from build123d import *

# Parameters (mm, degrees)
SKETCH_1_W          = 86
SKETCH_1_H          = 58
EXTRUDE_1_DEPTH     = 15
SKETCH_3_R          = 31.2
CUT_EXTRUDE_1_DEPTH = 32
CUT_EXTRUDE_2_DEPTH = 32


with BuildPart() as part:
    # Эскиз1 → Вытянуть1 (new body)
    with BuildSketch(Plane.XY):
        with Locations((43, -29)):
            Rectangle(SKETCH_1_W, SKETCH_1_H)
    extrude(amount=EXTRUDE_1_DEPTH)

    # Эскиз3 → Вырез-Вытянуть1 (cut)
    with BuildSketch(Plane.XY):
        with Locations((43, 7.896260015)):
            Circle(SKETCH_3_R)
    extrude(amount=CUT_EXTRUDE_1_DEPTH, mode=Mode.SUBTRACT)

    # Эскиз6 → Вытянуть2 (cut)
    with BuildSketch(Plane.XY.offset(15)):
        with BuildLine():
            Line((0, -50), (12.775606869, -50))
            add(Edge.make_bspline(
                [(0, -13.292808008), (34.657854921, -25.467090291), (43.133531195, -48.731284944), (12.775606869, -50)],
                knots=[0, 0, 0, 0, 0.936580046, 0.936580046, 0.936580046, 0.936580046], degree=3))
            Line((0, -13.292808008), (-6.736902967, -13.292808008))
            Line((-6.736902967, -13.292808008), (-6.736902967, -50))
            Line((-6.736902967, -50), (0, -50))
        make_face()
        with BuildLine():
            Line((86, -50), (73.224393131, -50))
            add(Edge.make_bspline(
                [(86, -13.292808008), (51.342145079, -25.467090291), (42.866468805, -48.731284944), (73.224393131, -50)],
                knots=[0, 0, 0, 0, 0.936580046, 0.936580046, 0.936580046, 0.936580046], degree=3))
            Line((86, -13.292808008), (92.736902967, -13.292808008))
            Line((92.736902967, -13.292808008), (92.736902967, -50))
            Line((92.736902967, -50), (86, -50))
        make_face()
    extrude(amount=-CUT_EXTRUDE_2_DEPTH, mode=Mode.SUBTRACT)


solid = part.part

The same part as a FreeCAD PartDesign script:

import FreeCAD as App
import Part
import Sketcher


def add_polygon(sketch, points):
    """Adds a closed chain of lines whose ends are joined by coincident constraints."""
    first, n = sketch.GeometryCount, len(points)
    for a, b in zip(points, points[1:] + points[:1]):
        sketch.addGeometry(Part.LineSegment(App.Vector(*a, 0), App.Vector(*b, 0)), False)
    for i in range(n):
        sketch.addConstraint(Sketcher.Constraint("Coincident", first + i, 2, first + (i + 1) % n, 1))

doc = App.newDocument("Part")
params = doc.addObject("Spreadsheet::Sheet", "Params")
for row, (alias, value) in enumerate([
    ("sketch1_width", "86 mm"),
    ("sketch1_height", "58 mm"),
    ("pad1_length", "15 mm"),
    ("sketch2_diameter", "62.4 mm"),
    ("pocket1_length", "32 mm"),
    ("pocket2_length", "32 mm"),
], start=1):
    params.set(f"A{row}", alias)
    params.set(f"B{row}", "=" + value)
    params.setAlias(f"B{row}", alias)

body = doc.addObject("PartDesign::Body", "Body")

# Sketch on XY plane
sketch1 = body.newObject("Sketcher::SketchObject", "Sketch")
sketch1.AttachmentSupport = (doc.getObject("XY_Plane"), [""])
sketch1.MapMode = "FlatFace"
add_polygon(sketch1, [(0, 0), (0, -58), (86, -58), (86, 0)])  # lines 0-3
sketch1.addConstraint(Sketcher.Constraint("Vertical", 0))
sketch1.addConstraint(Sketcher.Constraint("Horizontal", 1))
sketch1.addConstraint(Sketcher.Constraint("Vertical", 2))
sketch1.addConstraint(Sketcher.Constraint("Horizontal", 3))
sketch1.addConstraint(Sketcher.Constraint("Coincident", 3, 2, -1, 1))
sketch1.addConstraint(Sketcher.Constraint("DistanceX", 1, 1, 1, 2, 86.0))
sketch1.addConstraint(Sketcher.Constraint("DistanceY", 0, 2, 0, 1, 58.0))
sketch1.setExpression("Constraints[9]", "Params.sketch1_width")
sketch1.setExpression("Constraints[10]", "Params.sketch1_height")
pad1 = body.newObject("PartDesign::Pad", "Pad")
pad1.Profile = sketch1
pad1.setExpression("Length", "Params.pad1_length")

# Sketch on XY plane
sketch2 = body.newObject("Sketcher::SketchObject", "Sketch001")
sketch2.AttachmentSupport = (doc.getObject("XY_Plane"), [""])
sketch2.MapMode = "FlatFace"
sketch2.addGeometry(Part.Circle(App.Vector(43, 8, 0), App.Vector(0, 0, 1), 31), False)
sketch2.addConstraint(Sketcher.Constraint("Diameter", 0, 62.4))
sketch2.addConstraint(Sketcher.Constraint("DistanceX", -1, 1, 0, 3, 43.0))
sketch2.addConstraint(Sketcher.Constraint("DistanceY", -1, 1, 0, 3, 7.89626))
sketch2.setExpression("Constraints[0]", "Params.sketch2_diameter")
pocket1 = body.newObject("PartDesign::Pocket", "Pocket")
pocket1.Profile = sketch2
pocket1.setExpression("Length", "Params.pocket1_length")
pocket1.Reversed = True

# Sketch on XY plane
sketch3 = body.newObject("Sketcher::SketchObject", "Sketch002")
sketch3.AttachmentSupport = (doc.getObject("XY_Plane"), [""])
sketch3.MapMode = "FlatFace"
sketch3.AttachmentOffset = App.Placement(App.Vector(0, 0, 15), App.Rotation())
sketch3.addGeometry(Part.BSplineCurve([App.Vector(0, -13.292808, 0), App.Vector(34.657855, -25.46709, 0), App.Vector(43.133531, -48.731285, 0), App.Vector(12.775607, -50, 0)], [4, 4], [0, 0.936580046], False, 3, [1, 1, 1, 1], False), False)
sketch3.addGeometry(Part.LineSegment(App.Vector(0, -13.292808, 0), App.Vector(-6.736903, -13.292808, 0)), False)
sketch3.addGeometry(Part.LineSegment(App.Vector(-6.736903, -13.292808, 0), App.Vector(-6.736903, -50, 0)), False)
sketch3.addGeometry(Part.LineSegment(App.Vector(-6.736903, -50, 0), App.Vector(12.775607, -50, 0)), False)
sketch3.addGeometry(Part.BSplineCurve([App.Vector(86, -13.292808, 0), App.Vector(51.342145, -25.46709, 0), App.Vector(42.866469, -48.731285, 0), App.Vector(73.224393, -50, 0)], [4, 4], [0, 0.936580046], False, 3, [1, 1, 1, 1], False), False)
sketch3.addGeometry(Part.LineSegment(App.Vector(73.224393, -50, 0), App.Vector(92.736903, -50, 0)), False)
sketch3.addGeometry(Part.LineSegment(App.Vector(92.736903, -50, 0), App.Vector(92.736903, -13.292808, 0)), False)
sketch3.addGeometry(Part.LineSegment(App.Vector(92.736903, -13.292808, 0), App.Vector(86, -13.292808, 0)), False)
sketch3.addConstraint(Sketcher.Constraint("Block", 0))
sketch3.addConstraint(Sketcher.Constraint("Block", 4))
sketch3.addConstraint(Sketcher.Constraint("Coincident", 0, 1, 1, 1))
sketch3.addConstraint(Sketcher.Constraint("Coincident", 1, 2, 2, 1))
sketch3.addConstraint(Sketcher.Constraint("Coincident", 2, 2, 3, 1))
sketch3.addConstraint(Sketcher.Constraint("Coincident", 3, 2, 0, 2))
sketch3.addConstraint(Sketcher.Constraint("Coincident", 4, 2, 5, 1))
sketch3.addConstraint(Sketcher.Constraint("Coincident", 5, 2, 6, 1))
sketch3.addConstraint(Sketcher.Constraint("Coincident", 6, 2, 7, 1))
sketch3.addConstraint(Sketcher.Constraint("Coincident", 7, 2, 4, 1))
sketch3.addConstraint(Sketcher.Constraint("Horizontal", 1))
sketch3.addConstraint(Sketcher.Constraint("Vertical", 2))
sketch3.addConstraint(Sketcher.Constraint("Horizontal", 3))
sketch3.addConstraint(Sketcher.Constraint("Horizontal", 5))
sketch3.addConstraint(Sketcher.Constraint("Vertical", 6))
sketch3.addConstraint(Sketcher.Constraint("Horizontal", 7))
sketch3.addConstraint(Sketcher.Constraint("Equal", 3, 5))
sketch3.addConstraint(Sketcher.Constraint("DistanceX", 3, 1, 3, 2, 19.51251))
pocket2 = body.newObject("PartDesign::Pocket", "Pocket001")
pocket2.Profile = sketch3
pocket2.setExpression("Length", "Params.pocket2_length")

doc.recompute()
